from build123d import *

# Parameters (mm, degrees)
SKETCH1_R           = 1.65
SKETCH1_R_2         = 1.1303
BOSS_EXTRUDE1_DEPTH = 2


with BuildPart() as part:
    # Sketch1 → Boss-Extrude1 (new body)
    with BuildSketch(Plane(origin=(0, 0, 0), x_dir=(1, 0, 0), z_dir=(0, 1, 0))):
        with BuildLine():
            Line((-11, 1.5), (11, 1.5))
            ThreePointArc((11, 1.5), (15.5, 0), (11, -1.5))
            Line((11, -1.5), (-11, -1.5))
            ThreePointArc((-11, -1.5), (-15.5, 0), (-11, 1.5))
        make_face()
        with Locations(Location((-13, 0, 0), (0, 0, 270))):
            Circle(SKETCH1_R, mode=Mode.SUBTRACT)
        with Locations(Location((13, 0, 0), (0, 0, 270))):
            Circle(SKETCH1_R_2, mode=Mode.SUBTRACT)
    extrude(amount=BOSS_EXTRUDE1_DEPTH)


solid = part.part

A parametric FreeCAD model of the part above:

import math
import FreeCAD as App
import Part
import Sketcher
from FreeCAD import Vector
Q = App.Units.Quantity

doc = App.newDocument("Part")
params = doc.addObject("Spreadsheet::Sheet", "Params")
for row, (alias, value) in enumerate([
    ("sketch1_diameter", "3.3 mm"),
    ("sketch1_radius", "2.5 mm"),
    ("sketch1_width", "22 mm"),
    ("pad1_length", "2 mm"),
], start=1):
    params.set(f"A{row}", alias)
    params.set(f"B{row}", "=" + value)
    params.setAlias(f"B{row}", alias)

body = doc.addObject("PartDesign::Body", "Body")

# Sketch on XZ plane
sketch1 = doc.addObject("Sketcher::SketchObject", "Sketch")
body.addObject(sketch1)
sketch1.AttachmentSupport = (doc.XZ_Plane, [""])
sketch1.MapMode = "FlatFace"
sketch1.addGeometry([
    Part.LineSegment(Vector(11, -1.5, 0), Vector(-11, -1.5, 0)),  # 0
    Part.ArcOfCircle(Part.Circle(Vector(-13, 0, 0), Vector(0, 0, 1), 2.5), math.radians(36.869898), math.radians(323.130102)),  # 1
    Part.LineSegment(Vector(-11, 1.5, 0), Vector(11, 1.5, 0)),  # 2
    Part.ArcOfCircle(Part.Circle(Vector(13, 0, 0), Vector(0, 0, 1), 2.5), math.radians(-143.130102), math.radians(143.130102)),  # 3
    Part.Circle(Vector(13, 0, 0), Vector(0, 0, 1), 1.1303),  # 4
    Part.Circle(Vector(-13, 0, 0), Vector(0, 0, 1), 1.65),  # 5
], False)
sketch1.addConstraint([
    Sketcher.Constraint("Coincident", 0, 2, 1, 2),
    Sketcher.Constraint("Coincident", 1, 1, 2, 1),
    Sketcher.Constraint("Coincident", 2, 2, 3, 2),
    Sketcher.Constraint("Coincident", 3, 1, 0, 1),
    Sketcher.Constraint("Horizontal", 0),
    Sketcher.Constraint("Horizontal", 2),
    Sketcher.Constraint("Coincident", 4, 3, 3, 3),
    Sketcher.Constraint("Coincident", 5, 3, 1, 3),
    Sketcher.Constraint("Equal", 1, 3),
    Sketcher.Constraint("Symmetric", 1, 3, 3, 3, -1, 1),
    Sketcher.Constraint("Symmetric", 0, 2, 1, 1, -1),
    Sketcher.Constraint("Diameter", 5, Q("3.3 mm")),
    Sketcher.Constraint("Radius", 1, Q("2.5 mm")),
    Sketcher.Constraint("DistanceX", 0, 2, 0, 1, Q("22 mm")),
    Sketcher.Constraint("DistanceX", 1, 3, -1, 1, Q("13 mm")),
    Sketcher.Constraint("Diameter", 4, Q("2.2606 mm")),
])
sketch1.setExpression("Constraints[11]", "Params.sketch1_diameter")
sketch1.setExpression("Constraints[12]", "Params.sketch1_radius")
sketch1.setExpression("Constraints[13]", "Params.sketch1_width")
pad1 = doc.addObject("PartDesign::Pad", "Pad")
body.addObject(pad1)
pad1.Profile = sketch1
pad1.setExpression("Length", "Params.pad1_length")
pad1.Reversed = True

doc.recompute()
